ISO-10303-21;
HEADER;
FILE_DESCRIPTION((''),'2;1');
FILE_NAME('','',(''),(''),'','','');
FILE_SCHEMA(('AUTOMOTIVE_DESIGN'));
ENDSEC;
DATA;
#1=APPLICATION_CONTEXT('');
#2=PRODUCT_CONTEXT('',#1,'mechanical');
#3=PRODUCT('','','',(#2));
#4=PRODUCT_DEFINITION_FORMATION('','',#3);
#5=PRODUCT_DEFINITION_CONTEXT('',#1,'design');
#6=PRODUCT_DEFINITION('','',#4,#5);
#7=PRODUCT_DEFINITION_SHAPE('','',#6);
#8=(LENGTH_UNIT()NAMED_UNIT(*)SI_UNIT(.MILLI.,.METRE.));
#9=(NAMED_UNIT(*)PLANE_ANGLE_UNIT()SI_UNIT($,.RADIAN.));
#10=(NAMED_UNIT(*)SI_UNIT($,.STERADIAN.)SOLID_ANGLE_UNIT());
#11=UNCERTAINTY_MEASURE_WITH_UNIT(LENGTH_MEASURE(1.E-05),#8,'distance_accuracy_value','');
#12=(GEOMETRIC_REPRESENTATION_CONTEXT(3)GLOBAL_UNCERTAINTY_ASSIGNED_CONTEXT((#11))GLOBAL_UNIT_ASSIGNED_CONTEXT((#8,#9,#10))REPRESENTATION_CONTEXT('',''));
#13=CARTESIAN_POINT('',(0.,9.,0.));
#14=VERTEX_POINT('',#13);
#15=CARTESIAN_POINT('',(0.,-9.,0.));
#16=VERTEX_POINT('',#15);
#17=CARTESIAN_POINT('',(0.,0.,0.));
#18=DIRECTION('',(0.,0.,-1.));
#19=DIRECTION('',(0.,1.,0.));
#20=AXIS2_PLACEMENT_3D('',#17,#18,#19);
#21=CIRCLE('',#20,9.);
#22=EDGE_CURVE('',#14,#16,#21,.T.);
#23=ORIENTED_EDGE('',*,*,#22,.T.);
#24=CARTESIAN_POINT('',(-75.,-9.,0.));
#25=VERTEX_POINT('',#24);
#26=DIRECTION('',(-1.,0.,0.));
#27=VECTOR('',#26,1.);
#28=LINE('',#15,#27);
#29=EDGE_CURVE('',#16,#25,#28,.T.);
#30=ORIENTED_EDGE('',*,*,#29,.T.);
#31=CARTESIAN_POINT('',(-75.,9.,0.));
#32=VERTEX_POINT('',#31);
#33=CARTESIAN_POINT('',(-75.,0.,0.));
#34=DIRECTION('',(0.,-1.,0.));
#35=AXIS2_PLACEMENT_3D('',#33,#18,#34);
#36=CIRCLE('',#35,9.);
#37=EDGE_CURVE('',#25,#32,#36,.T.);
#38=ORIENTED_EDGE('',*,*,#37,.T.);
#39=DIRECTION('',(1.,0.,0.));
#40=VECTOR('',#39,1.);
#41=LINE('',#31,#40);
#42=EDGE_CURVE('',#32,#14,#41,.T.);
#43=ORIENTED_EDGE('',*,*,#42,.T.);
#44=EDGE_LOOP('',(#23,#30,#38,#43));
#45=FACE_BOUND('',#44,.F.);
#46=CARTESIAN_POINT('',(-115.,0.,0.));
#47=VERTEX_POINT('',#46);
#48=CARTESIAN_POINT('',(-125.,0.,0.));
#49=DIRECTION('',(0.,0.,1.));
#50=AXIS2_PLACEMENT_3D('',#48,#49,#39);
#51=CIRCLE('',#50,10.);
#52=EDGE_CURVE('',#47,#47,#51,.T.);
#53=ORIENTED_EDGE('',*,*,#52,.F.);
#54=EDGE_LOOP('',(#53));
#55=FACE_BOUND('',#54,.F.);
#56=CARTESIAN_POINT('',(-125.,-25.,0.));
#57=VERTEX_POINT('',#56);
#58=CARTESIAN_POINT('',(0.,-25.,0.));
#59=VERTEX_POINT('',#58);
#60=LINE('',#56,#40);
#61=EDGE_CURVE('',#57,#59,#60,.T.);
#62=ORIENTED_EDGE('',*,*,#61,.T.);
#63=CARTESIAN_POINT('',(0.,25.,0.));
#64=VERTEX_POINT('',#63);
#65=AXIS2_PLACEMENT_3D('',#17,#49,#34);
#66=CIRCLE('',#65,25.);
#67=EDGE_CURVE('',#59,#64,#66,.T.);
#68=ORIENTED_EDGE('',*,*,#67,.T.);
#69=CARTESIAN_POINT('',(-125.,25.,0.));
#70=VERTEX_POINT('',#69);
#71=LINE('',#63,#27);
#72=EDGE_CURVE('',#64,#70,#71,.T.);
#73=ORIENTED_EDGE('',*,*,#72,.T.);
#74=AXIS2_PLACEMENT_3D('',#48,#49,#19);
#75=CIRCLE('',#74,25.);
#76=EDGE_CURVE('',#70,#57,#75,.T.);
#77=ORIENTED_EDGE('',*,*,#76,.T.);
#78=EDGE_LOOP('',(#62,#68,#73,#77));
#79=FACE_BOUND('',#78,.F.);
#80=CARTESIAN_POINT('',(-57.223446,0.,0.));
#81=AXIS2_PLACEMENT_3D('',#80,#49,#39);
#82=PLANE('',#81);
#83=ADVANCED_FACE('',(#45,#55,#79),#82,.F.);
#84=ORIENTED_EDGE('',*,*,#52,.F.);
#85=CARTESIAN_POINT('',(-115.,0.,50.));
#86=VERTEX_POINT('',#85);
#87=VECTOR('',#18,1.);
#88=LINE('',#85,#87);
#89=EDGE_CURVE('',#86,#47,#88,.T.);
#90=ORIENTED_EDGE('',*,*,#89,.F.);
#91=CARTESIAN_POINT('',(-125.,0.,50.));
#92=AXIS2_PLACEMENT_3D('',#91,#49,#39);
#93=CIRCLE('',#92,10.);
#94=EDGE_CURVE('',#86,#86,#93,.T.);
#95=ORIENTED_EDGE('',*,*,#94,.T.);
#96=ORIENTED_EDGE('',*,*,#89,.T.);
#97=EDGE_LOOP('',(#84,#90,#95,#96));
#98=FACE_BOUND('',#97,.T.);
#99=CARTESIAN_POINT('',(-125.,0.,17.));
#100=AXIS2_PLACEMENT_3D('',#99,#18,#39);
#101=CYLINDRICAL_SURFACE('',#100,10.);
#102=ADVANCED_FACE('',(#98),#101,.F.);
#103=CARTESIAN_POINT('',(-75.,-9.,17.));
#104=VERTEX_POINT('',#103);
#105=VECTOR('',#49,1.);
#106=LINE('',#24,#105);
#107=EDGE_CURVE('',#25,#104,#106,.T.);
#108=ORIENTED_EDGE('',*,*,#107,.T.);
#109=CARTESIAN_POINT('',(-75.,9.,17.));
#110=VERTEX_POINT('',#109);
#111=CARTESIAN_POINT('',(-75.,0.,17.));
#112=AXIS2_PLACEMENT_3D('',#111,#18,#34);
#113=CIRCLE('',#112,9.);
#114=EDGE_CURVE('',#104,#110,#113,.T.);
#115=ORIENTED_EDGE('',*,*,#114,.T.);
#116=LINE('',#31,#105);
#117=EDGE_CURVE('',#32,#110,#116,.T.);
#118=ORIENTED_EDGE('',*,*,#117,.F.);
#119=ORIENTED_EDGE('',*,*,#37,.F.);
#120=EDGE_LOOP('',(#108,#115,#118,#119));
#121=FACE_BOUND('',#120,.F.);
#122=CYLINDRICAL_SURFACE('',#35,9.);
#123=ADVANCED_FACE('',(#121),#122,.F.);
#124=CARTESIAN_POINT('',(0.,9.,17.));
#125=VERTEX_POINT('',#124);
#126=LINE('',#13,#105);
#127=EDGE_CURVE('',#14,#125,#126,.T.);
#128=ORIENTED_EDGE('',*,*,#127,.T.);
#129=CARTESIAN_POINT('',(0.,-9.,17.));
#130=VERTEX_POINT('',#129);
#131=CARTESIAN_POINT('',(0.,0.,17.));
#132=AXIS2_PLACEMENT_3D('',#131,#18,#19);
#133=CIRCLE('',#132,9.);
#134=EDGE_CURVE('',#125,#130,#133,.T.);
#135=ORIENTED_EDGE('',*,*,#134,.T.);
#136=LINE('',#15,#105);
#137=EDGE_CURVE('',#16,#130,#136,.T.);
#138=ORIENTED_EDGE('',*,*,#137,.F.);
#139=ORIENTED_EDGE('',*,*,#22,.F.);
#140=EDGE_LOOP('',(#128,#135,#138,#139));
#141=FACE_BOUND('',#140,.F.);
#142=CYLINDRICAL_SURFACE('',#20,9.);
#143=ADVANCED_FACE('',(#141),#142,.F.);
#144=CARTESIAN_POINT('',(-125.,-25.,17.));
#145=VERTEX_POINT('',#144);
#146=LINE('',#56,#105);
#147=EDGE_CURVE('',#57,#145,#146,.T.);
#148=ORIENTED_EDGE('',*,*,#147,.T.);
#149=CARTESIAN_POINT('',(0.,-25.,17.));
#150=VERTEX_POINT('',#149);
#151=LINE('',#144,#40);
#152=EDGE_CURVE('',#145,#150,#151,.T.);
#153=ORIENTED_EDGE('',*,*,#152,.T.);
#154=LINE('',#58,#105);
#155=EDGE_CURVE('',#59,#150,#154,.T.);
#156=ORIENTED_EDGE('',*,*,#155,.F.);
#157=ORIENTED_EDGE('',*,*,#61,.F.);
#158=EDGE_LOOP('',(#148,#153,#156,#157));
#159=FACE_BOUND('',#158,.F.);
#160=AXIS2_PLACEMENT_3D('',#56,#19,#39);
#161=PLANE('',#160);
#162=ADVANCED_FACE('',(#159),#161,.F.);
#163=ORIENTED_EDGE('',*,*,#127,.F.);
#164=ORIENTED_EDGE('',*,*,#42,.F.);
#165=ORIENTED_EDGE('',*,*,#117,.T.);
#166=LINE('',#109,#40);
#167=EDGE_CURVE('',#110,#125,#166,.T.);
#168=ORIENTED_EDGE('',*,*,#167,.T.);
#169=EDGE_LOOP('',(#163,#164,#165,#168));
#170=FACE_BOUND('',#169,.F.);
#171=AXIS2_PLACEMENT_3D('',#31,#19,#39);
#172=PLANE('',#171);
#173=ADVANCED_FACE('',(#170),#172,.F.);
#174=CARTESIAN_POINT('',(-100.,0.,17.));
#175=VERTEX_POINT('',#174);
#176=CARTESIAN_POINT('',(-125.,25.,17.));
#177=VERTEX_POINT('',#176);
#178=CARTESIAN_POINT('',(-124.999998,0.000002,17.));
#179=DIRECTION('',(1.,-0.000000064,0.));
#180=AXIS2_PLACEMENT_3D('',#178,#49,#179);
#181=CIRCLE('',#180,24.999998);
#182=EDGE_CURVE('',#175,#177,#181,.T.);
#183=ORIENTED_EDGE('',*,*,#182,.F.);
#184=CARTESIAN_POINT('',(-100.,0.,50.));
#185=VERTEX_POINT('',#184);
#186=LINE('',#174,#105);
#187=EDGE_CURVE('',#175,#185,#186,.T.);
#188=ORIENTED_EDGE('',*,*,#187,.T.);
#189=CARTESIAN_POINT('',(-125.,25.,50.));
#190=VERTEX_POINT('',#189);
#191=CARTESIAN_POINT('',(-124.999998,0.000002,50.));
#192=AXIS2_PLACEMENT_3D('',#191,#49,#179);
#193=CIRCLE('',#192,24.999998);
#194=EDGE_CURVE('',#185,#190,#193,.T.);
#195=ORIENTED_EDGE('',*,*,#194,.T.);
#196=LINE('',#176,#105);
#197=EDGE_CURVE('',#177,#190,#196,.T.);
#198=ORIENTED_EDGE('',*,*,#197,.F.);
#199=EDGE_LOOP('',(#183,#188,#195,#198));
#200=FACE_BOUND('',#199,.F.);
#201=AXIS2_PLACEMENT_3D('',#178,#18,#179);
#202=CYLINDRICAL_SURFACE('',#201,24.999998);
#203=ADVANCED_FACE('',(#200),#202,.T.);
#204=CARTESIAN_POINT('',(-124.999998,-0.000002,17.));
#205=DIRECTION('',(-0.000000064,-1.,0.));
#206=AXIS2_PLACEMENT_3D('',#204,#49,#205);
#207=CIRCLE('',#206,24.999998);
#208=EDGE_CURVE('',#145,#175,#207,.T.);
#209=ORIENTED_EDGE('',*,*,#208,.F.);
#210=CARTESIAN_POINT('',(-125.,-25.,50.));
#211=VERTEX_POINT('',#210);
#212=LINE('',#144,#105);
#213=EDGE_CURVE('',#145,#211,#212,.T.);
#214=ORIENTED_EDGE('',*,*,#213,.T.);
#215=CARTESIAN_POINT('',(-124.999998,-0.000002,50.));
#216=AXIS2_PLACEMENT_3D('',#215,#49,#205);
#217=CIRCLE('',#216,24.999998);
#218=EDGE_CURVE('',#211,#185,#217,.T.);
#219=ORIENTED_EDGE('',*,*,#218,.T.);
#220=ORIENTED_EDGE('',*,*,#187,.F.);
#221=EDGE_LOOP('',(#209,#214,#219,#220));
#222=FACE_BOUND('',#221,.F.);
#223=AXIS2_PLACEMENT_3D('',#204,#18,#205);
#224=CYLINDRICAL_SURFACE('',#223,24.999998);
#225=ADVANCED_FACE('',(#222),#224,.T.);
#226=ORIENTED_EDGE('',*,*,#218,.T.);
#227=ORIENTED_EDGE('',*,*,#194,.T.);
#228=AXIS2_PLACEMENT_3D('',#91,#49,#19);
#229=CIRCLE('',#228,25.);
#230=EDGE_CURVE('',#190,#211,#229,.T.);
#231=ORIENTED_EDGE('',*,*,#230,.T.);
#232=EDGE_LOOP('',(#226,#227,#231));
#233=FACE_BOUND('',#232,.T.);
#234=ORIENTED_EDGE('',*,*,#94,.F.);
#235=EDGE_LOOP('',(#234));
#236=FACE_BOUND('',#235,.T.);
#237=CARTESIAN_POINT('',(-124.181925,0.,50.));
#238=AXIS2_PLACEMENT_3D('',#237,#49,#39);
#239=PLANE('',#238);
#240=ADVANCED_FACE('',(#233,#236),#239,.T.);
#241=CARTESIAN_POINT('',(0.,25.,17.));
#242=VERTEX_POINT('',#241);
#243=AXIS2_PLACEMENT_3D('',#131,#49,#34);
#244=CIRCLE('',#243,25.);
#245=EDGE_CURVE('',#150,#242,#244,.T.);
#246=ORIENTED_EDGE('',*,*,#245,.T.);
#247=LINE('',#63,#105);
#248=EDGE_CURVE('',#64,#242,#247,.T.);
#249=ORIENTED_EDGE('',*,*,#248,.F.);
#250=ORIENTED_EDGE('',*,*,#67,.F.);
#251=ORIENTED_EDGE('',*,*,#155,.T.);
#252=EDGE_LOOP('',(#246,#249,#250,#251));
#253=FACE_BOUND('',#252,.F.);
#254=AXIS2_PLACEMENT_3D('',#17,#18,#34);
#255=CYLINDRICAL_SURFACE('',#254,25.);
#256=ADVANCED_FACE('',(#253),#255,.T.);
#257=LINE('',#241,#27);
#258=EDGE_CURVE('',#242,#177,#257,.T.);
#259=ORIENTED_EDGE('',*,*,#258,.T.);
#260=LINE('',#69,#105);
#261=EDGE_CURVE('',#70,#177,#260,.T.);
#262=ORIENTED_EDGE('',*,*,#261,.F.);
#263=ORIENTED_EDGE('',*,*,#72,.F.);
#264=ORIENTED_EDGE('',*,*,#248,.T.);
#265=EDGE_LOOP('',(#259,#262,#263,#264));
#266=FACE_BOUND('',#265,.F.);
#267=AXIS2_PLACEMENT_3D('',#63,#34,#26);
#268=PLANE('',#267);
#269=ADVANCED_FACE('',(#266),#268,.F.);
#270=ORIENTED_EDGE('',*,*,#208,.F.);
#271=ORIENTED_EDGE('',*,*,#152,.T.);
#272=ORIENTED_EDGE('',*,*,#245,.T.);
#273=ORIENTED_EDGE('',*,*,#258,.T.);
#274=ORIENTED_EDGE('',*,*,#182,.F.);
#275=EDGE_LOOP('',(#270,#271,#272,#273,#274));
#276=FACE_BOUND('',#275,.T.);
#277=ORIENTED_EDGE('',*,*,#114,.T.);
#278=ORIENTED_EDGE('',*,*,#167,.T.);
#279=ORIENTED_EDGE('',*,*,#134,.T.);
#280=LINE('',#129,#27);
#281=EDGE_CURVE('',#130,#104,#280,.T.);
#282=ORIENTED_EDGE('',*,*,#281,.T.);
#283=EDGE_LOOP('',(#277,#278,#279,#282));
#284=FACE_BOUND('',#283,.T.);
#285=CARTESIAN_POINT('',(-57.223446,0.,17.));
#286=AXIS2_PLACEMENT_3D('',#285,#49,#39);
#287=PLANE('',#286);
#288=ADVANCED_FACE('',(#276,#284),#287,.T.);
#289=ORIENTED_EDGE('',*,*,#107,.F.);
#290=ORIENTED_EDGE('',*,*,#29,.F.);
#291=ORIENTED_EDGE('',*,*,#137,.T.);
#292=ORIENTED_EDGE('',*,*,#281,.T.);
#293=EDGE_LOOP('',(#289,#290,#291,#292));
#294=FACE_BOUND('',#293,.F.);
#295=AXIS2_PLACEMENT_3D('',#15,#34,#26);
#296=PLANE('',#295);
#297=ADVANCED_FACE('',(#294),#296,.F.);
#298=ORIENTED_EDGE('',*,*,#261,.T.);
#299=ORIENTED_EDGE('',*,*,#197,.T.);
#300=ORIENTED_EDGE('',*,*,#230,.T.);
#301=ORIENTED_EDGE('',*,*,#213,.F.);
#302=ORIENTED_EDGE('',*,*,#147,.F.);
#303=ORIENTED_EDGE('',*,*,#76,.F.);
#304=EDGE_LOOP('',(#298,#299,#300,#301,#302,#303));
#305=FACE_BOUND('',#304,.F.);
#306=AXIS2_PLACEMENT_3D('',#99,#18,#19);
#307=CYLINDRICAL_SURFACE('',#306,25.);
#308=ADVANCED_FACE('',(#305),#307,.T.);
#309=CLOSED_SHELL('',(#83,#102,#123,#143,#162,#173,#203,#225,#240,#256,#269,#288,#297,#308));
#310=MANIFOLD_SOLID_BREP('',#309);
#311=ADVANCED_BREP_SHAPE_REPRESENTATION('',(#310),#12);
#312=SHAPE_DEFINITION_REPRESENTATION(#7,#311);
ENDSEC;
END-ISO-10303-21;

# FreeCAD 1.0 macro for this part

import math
import FreeCAD as App
import Part
import Sketcher

doc = App.newDocument("Part")
params = doc.addObject("Spreadsheet::Sheet", "Params")
for row, (alias, value) in enumerate([
    ("sketch1_diameter", "20 mm"),
    ("sketch1_radius", "25 mm"),
    ("sketch1_radius2", "9 mm"),
    ("sketch1_width", "125 mm"),
    ("sketch1_width2", "75 mm"),
    ("pad1_length", "17 mm"),
    ("sketch2_diameter", "20 mm"),
    ("sketch2_radius", "24.999998 mm"),
    ("pad2_length", "33 mm"),
], start=1):
    params.set(f"A{row}", alias)
    params.set(f"B{row}", "=" + value)
    params.setAlias(f"B{row}", alias)

body = doc.addObject("PartDesign::Body", "Body")

sketch1 = doc.addObject("Sketcher::SketchObject", "Sketch")
body.addObject(sketch1)
sketch1.AttachmentSupport = (doc.XY_Plane, [""])
sketch1.MapMode = "FlatFace"
sketch1.addGeometry(Part.LineSegment(App.Vector(-125, -25, 0), App.Vector(0, -25, 0)), False)
sketch1.addGeometry(Part.ArcOfCircle(Part.Circle(App.Vector(0, 0, 0), App.Vector(0, 0, 1), 25), math.radians(-90), math.radians(90)), False)
sketch1.addGeometry(Part.LineSegment(App.Vector(0, 25, 0), App.Vector(-125, 25, 0)), False)
sketch1.addGeometry(Part.ArcOfCircle(Part.Circle(App.Vector(-125, 0, 0), App.Vector(0, 0, 1), 25), math.radians(90), math.radians(270)), False)
sketch1.addGeometry(Part.Circle(App.Vector(-125, 0, 0), App.Vector(0, 0, 1), 10), False)
sketch1.addGeometry(Part.LineSegment(App.Vector(-75, 9, 0), App.Vector(0, 9, 0)), False)
sketch1.addGeometry(Part.ArcOfCircle(Part.Circle(App.Vector(0, 0, 0), App.Vector(0, 0, 1), 9), math.radians(-90), math.radians(90)), False)
sketch1.addGeometry(Part.LineSegment(App.Vector(0, -9, 0), App.Vector(-75, -9, 0)), False)
sketch1.addGeometry(Part.ArcOfCircle(Part.Circle(App.Vector(-75, 0, 0), App.Vector(0, 0, 1), 9), math.radians(90), math.radians(270)), False)
sketch1.addConstraint(Sketcher.Constraint("Tangent", 0, 2, 1, 1))
sketch1.addConstraint(Sketcher.Constraint("Tangent", 1, 2, 2, 1))
sketch1.addConstraint(Sketcher.Constraint("Tangent", 2, 2, 3, 1))
sketch1.addConstraint(Sketcher.Constraint("Tangent", 3, 2, 0, 1))
sketch1.addConstraint(Sketcher.Constraint("Tangent", 5, 2, 6, 2))
sketch1.addConstraint(Sketcher.Constraint("Tangent", 6, 1, 7, 1))
sketch1.addConstraint(Sketcher.Constraint("Tangent", 7, 2, 8, 2))
sketch1.addConstraint(Sketcher.Constraint("Tangent", 8, 1, 5, 1))
sketch1.addConstraint(Sketcher.Constraint("Horizontal", 0))
sketch1.addConstraint(Sketcher.Constraint("Horizontal", 2))
sketch1.addConstraint(Sketcher.Constraint("Horizontal", 5))
sketch1.addConstraint(Sketcher.Constraint("Horizontal", 7))
sketch1.addConstraint(Sketcher.Constraint("Coincident", 1, 3, -1, 1))
sketch1.addConstraint(Sketcher.Constraint("Coincident", 6, 3, -1, 1))
sketch1.addConstraint(Sketcher.Constraint("Coincident", 4, 3, 3, 3))
sketch1.addConstraint(Sketcher.Constraint("Diameter", 4, 20.0))
sketch1.addConstraint(Sketcher.Constraint("Radius", 1, 25.0))
sketch1.addConstraint(Sketcher.Constraint("Radius", 6, 9.0))
sketch1.addConstraint(Sketcher.Constraint("DistanceX", 0, 1, 0, 2, 125.0))
sketch1.addConstraint(Sketcher.Constraint("DistanceX", 5, 1, 5, 2, 75.0))
sketch1.setExpression("Constraints[15]", "Params.sketch1_diameter")
sketch1.setExpression("Constraints[16]", "Params.sketch1_radius")
sketch1.setExpression("Constraints[17]", "Params.sketch1_radius2")
sketch1.setExpression("Constraints[18]", "Params.sketch1_width")
sketch1.setExpression("Constraints[19]", "Params.sketch1_width2")
pad1 = doc.addObject("PartDesign::Pad", "Pad")
body.addObject(pad1)
pad1.Profile = sketch1
pad1.setExpression("Length", "Params.pad1_length")

sketch2 = doc.addObject("Sketcher::SketchObject", "Sketch001")
body.addObject(sketch2)
sketch2.AttachmentSupport = (doc.XY_Plane, [""])
sketch2.MapMode = "FlatFace"
sketch2.AttachmentOffset = App.Placement(App.Vector(0, 0, 17), App.Rotation())
sketch2.addGeometry(Part.ArcOfCircle(Part.Circle(App.Vector(-125, 0, 0), App.Vector(0, 0, 1), 25), math.radians(-90), math.radians(0)), False)
sketch2.addGeometry(Part.ArcOfCircle(Part.Circle(App.Vector(-125, 0, 0), App.Vector(0, 0, 1), 25), math.radians(0), math.radians(90)), False)
sketch2.addGeometry(Part.ArcOfCircle(Part.Circle(App.Vector(-125, 0, 0), App.Vector(0, 0, 1), 25), math.radians(90), math.radians(270)), False)
sketch2.addGeometry(Part.Circle(App.Vector(-125, 0, 0), App.Vector(0, 0, 1), 10), False)
sketch2.addConstraint(Sketcher.Constraint("Tangent", 0, 2, 1, 1))
sketch2.addConstraint(Sketcher.Constraint("Tangent", 1, 2, 2, 1))
sketch2.addConstraint(Sketcher.Constraint("Tangent", 2, 2, 0, 1))
sketch2.addConstraint(Sketcher.Constraint("Coincident", 3, 3, 0, 3))
sketch2.addConstraint(Sketcher.Constraint("Symmetric", 1, 2, 2, 2, -1))
sketch2.addConstraint(Sketcher.Constraint("PointOnObject", 0, 2, -1))
sketch2.addConstraint(Sketcher.Constraint("Vertical", 3, 3, 1, 2))
sketch2.addConstraint(Sketcher.Constraint("Diameter", 3, 20.0))
sketch2.addConstraint(Sketcher.Constraint("Radius", 0, 24.999998))
sketch2.addConstraint(Sketcher.Constraint("DistanceX", 0, 3, -1, 1, 124.999998))
sketch2.setExpression("Constraints[7]", "Params.sketch2_diameter")
sketch2.setExpression("Constraints[8]", "Params.sketch2_radius")
pad2 = doc.addObject("PartDesign::Pad", "Pad001")
body.addObject(pad2)
pad2.Profile = sketch2
pad2.setExpression("Length", "Params.pad2_length")

doc.recompute()
